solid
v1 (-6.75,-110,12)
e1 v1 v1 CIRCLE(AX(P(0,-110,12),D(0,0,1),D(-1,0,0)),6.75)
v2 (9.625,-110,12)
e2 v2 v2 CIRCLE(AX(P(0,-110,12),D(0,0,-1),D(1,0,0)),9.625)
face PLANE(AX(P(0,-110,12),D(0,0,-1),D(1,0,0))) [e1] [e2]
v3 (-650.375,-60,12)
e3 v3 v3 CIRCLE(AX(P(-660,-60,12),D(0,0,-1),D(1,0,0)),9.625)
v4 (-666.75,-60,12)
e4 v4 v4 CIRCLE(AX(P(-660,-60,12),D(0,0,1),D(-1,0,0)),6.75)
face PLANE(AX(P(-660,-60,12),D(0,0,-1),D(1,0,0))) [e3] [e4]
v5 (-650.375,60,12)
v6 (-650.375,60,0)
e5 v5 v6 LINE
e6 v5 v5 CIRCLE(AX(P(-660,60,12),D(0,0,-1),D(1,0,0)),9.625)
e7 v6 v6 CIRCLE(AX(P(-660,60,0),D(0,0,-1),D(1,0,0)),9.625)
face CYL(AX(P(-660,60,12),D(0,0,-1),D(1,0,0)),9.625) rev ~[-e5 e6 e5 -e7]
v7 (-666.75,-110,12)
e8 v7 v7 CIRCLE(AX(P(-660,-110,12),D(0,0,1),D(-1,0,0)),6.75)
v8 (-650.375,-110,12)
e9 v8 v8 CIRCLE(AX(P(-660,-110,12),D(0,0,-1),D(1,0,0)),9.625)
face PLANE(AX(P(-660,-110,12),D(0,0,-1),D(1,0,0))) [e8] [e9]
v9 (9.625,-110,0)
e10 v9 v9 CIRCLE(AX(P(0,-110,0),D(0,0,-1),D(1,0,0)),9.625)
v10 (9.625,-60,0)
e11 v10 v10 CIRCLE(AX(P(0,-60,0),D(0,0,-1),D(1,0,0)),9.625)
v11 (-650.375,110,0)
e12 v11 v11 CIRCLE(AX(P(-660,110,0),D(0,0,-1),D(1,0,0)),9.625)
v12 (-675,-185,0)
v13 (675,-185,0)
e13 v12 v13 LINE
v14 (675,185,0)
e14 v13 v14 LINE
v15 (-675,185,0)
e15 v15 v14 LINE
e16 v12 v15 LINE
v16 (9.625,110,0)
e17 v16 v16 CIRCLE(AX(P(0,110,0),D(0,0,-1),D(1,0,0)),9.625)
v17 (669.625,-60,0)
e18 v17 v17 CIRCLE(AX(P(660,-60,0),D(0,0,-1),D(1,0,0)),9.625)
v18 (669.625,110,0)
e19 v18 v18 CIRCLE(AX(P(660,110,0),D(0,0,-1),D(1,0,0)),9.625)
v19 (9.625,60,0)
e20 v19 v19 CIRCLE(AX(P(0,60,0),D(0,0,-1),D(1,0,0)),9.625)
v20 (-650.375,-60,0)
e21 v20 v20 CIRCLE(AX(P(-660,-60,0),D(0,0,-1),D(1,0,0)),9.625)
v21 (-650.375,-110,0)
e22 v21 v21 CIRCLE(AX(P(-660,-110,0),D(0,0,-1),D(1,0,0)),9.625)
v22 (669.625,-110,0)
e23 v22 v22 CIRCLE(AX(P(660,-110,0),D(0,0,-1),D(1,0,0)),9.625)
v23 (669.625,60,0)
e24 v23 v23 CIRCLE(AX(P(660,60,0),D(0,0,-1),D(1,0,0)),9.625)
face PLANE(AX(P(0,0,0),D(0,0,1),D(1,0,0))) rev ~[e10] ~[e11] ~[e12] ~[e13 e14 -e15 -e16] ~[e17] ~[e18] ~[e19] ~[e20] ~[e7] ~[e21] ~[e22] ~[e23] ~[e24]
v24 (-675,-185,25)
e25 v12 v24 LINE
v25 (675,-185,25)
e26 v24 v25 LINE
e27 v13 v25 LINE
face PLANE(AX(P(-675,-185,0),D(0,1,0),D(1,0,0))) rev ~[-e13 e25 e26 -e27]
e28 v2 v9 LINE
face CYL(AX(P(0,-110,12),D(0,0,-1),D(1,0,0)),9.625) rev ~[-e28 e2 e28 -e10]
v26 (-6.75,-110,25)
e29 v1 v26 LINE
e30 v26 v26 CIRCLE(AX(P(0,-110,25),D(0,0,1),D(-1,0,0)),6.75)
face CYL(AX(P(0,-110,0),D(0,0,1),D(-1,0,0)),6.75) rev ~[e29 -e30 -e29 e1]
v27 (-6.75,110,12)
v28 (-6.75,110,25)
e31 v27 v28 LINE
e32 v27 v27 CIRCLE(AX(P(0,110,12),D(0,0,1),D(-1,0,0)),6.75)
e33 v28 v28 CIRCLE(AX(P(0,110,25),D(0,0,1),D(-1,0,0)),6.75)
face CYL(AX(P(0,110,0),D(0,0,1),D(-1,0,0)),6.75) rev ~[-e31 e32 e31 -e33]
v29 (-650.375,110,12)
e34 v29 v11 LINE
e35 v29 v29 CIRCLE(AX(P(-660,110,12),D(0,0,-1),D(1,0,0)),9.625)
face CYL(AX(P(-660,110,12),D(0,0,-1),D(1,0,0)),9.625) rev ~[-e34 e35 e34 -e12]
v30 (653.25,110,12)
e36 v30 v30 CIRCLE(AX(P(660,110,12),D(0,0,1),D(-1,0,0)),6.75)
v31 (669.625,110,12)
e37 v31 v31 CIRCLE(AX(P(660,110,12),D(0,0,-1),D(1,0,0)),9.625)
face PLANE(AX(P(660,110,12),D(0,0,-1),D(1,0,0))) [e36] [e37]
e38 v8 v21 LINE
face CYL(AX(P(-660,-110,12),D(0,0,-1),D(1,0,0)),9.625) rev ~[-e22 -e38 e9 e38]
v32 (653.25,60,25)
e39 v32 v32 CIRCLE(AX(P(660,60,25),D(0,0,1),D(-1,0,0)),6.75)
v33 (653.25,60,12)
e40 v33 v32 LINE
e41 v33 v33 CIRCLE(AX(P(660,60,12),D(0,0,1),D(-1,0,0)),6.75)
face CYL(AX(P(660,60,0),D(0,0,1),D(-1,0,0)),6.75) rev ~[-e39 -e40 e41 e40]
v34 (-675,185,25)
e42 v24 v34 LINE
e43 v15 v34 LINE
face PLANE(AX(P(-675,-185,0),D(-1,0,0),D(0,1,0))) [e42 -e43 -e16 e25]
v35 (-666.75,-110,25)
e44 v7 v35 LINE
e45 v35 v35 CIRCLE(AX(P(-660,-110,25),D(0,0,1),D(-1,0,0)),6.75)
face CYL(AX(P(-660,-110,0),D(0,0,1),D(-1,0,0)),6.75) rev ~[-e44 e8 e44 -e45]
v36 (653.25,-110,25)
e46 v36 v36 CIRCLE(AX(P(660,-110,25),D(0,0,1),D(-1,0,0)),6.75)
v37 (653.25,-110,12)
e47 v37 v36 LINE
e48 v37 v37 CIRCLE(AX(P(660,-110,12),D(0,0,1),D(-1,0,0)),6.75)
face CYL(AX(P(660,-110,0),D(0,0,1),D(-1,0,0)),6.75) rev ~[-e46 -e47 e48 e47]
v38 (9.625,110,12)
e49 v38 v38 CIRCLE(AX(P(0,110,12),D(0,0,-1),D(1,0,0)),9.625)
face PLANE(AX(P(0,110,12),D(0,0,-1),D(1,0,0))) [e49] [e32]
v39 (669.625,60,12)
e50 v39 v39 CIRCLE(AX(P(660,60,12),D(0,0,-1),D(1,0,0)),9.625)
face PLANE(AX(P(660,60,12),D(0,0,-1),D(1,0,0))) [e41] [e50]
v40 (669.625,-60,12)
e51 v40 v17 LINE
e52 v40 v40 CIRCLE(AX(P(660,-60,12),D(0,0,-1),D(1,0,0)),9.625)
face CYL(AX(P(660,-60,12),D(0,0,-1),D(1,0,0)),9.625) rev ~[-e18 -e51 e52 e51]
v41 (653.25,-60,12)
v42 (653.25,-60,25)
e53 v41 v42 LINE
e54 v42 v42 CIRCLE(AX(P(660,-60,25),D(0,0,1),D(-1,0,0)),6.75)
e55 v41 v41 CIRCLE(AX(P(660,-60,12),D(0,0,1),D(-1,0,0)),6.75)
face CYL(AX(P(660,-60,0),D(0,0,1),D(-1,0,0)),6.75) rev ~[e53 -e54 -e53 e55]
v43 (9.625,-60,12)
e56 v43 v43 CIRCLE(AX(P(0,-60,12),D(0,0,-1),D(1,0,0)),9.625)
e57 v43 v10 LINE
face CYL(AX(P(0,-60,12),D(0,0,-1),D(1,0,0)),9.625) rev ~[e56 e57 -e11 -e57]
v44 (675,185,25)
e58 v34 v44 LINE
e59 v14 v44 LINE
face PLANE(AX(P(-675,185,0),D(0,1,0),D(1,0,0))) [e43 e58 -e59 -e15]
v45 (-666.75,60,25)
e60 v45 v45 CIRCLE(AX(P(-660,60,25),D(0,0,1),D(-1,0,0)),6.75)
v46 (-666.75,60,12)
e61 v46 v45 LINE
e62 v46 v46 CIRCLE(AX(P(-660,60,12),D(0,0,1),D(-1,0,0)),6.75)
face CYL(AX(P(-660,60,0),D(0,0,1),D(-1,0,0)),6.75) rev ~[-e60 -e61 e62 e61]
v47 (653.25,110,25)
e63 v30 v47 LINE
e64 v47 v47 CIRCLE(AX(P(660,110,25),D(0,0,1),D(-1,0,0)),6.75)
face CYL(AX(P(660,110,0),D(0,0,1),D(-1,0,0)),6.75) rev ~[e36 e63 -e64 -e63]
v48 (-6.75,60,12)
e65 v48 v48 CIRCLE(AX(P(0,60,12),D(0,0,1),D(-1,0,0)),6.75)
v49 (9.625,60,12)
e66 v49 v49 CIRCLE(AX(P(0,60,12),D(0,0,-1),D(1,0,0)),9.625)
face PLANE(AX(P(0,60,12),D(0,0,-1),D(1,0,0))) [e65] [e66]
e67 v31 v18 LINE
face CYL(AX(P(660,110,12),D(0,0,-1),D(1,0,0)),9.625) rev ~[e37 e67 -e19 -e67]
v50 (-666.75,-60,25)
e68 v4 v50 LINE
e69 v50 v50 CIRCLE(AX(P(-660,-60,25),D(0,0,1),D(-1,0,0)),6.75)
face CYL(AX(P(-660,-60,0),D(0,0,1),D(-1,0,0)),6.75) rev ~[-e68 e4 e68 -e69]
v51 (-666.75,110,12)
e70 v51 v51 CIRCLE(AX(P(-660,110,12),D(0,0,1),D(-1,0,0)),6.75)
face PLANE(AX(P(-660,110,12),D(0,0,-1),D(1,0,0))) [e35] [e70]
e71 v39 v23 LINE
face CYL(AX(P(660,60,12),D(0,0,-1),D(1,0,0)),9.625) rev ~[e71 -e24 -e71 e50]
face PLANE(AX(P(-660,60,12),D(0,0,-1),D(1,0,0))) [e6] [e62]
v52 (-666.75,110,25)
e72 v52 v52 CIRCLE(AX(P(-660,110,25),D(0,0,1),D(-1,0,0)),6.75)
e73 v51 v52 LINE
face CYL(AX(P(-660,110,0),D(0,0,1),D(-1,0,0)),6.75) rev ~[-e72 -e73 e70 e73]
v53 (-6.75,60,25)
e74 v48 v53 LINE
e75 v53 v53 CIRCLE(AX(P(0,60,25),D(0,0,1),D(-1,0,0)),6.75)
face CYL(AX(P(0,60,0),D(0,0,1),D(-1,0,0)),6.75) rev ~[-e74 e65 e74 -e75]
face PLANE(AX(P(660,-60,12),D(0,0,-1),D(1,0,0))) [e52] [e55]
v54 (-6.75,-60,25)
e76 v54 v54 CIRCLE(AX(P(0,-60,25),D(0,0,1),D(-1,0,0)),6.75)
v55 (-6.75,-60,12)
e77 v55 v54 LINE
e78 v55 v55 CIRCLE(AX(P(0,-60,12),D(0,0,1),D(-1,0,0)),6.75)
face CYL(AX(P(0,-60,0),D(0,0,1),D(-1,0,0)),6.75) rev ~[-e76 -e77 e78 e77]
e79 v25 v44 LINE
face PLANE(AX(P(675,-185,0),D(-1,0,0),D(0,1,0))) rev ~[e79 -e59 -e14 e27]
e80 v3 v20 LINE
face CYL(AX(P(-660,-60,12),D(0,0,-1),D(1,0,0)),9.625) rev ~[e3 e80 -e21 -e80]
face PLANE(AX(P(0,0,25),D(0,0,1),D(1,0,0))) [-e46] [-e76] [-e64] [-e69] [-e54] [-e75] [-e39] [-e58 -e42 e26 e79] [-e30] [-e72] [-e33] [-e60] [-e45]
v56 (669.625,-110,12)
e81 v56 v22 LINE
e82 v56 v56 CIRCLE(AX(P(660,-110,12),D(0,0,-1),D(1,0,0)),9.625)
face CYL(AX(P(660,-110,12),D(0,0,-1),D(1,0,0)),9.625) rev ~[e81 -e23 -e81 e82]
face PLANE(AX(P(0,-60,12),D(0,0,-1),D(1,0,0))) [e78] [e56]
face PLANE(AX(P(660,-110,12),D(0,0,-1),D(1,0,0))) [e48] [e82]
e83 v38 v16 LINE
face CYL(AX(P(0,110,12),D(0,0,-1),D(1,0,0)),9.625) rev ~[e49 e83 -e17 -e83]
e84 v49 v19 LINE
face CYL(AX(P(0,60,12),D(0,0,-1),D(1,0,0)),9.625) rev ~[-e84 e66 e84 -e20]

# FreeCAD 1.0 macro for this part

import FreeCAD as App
import Part
import Sketcher

V = App.Vector


def add_polygon(sketch, points):
    """Adds a closed chain of lines whose ends are joined by coincident constraints."""
    first, n = sketch.GeometryCount, len(points)
    for a, b in zip(points, points[1:] + points[:1]):
        sketch.addGeometry(Part.LineSegment(App.Vector(*a, 0), App.Vector(*b, 0)), False)
    for i in range(n):
        sketch.addConstraint(Sketcher.Constraint("Coincident", first + i, 2, first + (i + 1) % n, 1))

doc = App.newDocument("Part")
body = doc.addObject("PartDesign::Body", "Body")

# Sketch on XY plane
sketch1 = doc.addObject("Sketcher::SketchObject", "Sketch")
body.addObject(sketch1)
sketch1.AttachmentSupport = (doc.XY_Plane, [""])
sketch1.MapMode = "FlatFace"
add_polygon(sketch1, [(-675, 185), (-675, -185), (675, -185), (675, 185)])  # lines 0-3
sketch1.addConstraint(Sketcher.Constraint("Vertical", 0))
sketch1.addConstraint(Sketcher.Constraint("Horizontal", 1))
sketch1.addConstraint(Sketcher.Constraint("Vertical", 2))
sketch1.addConstraint(Sketcher.Constraint("Horizontal", 3))
sketch1.addConstraint(Sketcher.Constraint("Symmetric", 0, 2, 2, 2, -1, 1))
sketch1.addConstraint(Sketcher.Constraint("DistanceX", 1, 1, 1, 2, 1350.0))
sketch1.addConstraint(Sketcher.Constraint("DistanceY", 0, 2, 0, 1, 370.0))
pad1 = doc.addObject("PartDesign::Pad", "Pad")
body.addObject(pad1)
pad1.Profile = sketch1
pad1.Length = 25

# Sketch on XY plane
sketch2 = doc.addObject("Sketcher::SketchObject", "Sketch001")
body.addObject(sketch2)
sketch2.AttachmentSupport = (doc.XY_Plane, [""])
sketch2.MapMode = "FlatFace"
sketch2.addGeometry(Part.Circle(V(-660, -110, 0), V(0, 0, 1), 6.75), False)
sketch2.addGeometry(Part.Circle(V(-660, -60, 0), V(0, 0, 1), 6.75), False)
sketch2.addGeometry(Part.Circle(V(0, -110, 0), V(0, 0, 1), 6.75), False)
sketch2.addGeometry(Part.Circle(V(0, -60, 0), V(0, 0, 1), 6.75), False)
sketch2.addGeometry(Part.Circle(V(660, -60, 0), V(0, 0, 1), 6.75), False)
sketch2.addGeometry(Part.Circle(V(660, -110, 0), V(0, 0, 1), 6.75), False)
sketch2.addGeometry(Part.Circle(V(660, 110, 0), V(0, 0, 1), 6.75), False)
sketch2.addGeometry(Part.Circle(V(660, 60, 0), V(0, 0, 1), 6.75), False)
sketch2.addGeometry(Part.Circle(V(0, 60, 0), V(0, 0, 1), 6.75), False)
sketch2.addGeometry(Part.Circle(V(0, 110, 0), V(0, 0, 1), 6.75), False)
sketch2.addGeometry(Part.Circle(V(-660, 110, 0), V(0, 0, 1), 6.75), False)
sketch2.addGeometry(Part.Circle(V(-660, 60, 0), V(0, 0, 1), 6.75), False)
sketch2.addConstraint(Sketcher.Constraint("Equal", 0, 1))
sketch2.addConstraint(Sketcher.Constraint("Equal", 1, 2))
sketch2.addConstraint(Sketcher.Constraint("Equal", 2, 3))
sketch2.addConstraint(Sketcher.Constraint("Equal", 3, 4))
sketch2.addConstraint(Sketcher.Constraint("Equal", 4, 5))
sketch2.addConstraint(Sketcher.Constraint("Equal", 5, 6))
sketch2.addConstraint(Sketcher.Constraint("Equal", 6, 7))
sketch2.addConstraint(Sketcher.Constraint("Equal", 7, 8))
sketch2.addConstraint(Sketcher.Constraint("Equal", 8, 9))
sketch2.addConstraint(Sketcher.Constraint("Equal", 9, 10))
sketch2.addConstraint(Sketcher.Constraint("Equal", 10, 11))
sketch2.addConstraint(Sketcher.Constraint("Symmetric", 0, 3, 6, 3, -1, 1))
sketch2.addConstraint(Sketcher.Constraint("Symmetric", 1, 3, 7, 3, -1, 1))
sketch2.addConstraint(Sketcher.Constraint("Symmetric", 3, 3, 8, 3, -1, 1))
sketch2.addConstraint(Sketcher.Constraint("Symmetric", 2, 3, 9, 3, -1, 1))
sketch2.addConstraint(Sketcher.Constraint("Symmetric", 5, 3, 10, 3, -1, 1))
sketch2.addConstraint(Sketcher.Constraint("Symmetric", 4, 3, 11, 3, -1, 1))
sketch2.addConstraint(Sketcher.Constraint("Symmetric", 1, 3, 4, 3, -2))
sketch2.addConstraint(Sketcher.Constraint("Symmetric", 0, 3, 5, 3, -2))
sketch2.addConstraint(Sketcher.Constraint("PointOnObject", 2, 3, -2))
sketch2.addConstraint(Sketcher.Constraint("PointOnObject", 3, 3, -2))
sketch2.addConstraint(Sketcher.Constraint("Horizontal", 0, 3, 2, 3))
sketch2.addConstraint(Sketcher.Constraint("Horizontal", 1, 3, 3, 3))
sketch2.addConstraint(Sketcher.Constraint("Vertical", 0, 3, 1, 3))
sketch2.addConstraint(Sketcher.Constraint("Diameter", 0, 13.5))
sketch2.addConstraint(Sketcher.Constraint("DistanceX", 0, 3, -1, 1, 660.0))
sketch2.addConstraint(Sketcher.Constraint("DistanceY", 0, 3, -1, 1, 110.0))
sketch2.addConstraint(Sketcher.Constraint("DistanceY", 1, 3, -1, 1, 60.0))
doc.recompute()
hole = doc.addObject("PartDesign::Hole", "Hole")
body.addObject(hole)
hole.Profile = sketch2
hole.ThreadType = "None"
hole.Diameter = 13.5
hole.DepthType = "ThroughAll"
hole.HoleCutType = "Counterbore"
hole.HoleCutDiameter = 19.25
hole.HoleCutDepth = 12
hole.Reversed = True

doc.recompute()
